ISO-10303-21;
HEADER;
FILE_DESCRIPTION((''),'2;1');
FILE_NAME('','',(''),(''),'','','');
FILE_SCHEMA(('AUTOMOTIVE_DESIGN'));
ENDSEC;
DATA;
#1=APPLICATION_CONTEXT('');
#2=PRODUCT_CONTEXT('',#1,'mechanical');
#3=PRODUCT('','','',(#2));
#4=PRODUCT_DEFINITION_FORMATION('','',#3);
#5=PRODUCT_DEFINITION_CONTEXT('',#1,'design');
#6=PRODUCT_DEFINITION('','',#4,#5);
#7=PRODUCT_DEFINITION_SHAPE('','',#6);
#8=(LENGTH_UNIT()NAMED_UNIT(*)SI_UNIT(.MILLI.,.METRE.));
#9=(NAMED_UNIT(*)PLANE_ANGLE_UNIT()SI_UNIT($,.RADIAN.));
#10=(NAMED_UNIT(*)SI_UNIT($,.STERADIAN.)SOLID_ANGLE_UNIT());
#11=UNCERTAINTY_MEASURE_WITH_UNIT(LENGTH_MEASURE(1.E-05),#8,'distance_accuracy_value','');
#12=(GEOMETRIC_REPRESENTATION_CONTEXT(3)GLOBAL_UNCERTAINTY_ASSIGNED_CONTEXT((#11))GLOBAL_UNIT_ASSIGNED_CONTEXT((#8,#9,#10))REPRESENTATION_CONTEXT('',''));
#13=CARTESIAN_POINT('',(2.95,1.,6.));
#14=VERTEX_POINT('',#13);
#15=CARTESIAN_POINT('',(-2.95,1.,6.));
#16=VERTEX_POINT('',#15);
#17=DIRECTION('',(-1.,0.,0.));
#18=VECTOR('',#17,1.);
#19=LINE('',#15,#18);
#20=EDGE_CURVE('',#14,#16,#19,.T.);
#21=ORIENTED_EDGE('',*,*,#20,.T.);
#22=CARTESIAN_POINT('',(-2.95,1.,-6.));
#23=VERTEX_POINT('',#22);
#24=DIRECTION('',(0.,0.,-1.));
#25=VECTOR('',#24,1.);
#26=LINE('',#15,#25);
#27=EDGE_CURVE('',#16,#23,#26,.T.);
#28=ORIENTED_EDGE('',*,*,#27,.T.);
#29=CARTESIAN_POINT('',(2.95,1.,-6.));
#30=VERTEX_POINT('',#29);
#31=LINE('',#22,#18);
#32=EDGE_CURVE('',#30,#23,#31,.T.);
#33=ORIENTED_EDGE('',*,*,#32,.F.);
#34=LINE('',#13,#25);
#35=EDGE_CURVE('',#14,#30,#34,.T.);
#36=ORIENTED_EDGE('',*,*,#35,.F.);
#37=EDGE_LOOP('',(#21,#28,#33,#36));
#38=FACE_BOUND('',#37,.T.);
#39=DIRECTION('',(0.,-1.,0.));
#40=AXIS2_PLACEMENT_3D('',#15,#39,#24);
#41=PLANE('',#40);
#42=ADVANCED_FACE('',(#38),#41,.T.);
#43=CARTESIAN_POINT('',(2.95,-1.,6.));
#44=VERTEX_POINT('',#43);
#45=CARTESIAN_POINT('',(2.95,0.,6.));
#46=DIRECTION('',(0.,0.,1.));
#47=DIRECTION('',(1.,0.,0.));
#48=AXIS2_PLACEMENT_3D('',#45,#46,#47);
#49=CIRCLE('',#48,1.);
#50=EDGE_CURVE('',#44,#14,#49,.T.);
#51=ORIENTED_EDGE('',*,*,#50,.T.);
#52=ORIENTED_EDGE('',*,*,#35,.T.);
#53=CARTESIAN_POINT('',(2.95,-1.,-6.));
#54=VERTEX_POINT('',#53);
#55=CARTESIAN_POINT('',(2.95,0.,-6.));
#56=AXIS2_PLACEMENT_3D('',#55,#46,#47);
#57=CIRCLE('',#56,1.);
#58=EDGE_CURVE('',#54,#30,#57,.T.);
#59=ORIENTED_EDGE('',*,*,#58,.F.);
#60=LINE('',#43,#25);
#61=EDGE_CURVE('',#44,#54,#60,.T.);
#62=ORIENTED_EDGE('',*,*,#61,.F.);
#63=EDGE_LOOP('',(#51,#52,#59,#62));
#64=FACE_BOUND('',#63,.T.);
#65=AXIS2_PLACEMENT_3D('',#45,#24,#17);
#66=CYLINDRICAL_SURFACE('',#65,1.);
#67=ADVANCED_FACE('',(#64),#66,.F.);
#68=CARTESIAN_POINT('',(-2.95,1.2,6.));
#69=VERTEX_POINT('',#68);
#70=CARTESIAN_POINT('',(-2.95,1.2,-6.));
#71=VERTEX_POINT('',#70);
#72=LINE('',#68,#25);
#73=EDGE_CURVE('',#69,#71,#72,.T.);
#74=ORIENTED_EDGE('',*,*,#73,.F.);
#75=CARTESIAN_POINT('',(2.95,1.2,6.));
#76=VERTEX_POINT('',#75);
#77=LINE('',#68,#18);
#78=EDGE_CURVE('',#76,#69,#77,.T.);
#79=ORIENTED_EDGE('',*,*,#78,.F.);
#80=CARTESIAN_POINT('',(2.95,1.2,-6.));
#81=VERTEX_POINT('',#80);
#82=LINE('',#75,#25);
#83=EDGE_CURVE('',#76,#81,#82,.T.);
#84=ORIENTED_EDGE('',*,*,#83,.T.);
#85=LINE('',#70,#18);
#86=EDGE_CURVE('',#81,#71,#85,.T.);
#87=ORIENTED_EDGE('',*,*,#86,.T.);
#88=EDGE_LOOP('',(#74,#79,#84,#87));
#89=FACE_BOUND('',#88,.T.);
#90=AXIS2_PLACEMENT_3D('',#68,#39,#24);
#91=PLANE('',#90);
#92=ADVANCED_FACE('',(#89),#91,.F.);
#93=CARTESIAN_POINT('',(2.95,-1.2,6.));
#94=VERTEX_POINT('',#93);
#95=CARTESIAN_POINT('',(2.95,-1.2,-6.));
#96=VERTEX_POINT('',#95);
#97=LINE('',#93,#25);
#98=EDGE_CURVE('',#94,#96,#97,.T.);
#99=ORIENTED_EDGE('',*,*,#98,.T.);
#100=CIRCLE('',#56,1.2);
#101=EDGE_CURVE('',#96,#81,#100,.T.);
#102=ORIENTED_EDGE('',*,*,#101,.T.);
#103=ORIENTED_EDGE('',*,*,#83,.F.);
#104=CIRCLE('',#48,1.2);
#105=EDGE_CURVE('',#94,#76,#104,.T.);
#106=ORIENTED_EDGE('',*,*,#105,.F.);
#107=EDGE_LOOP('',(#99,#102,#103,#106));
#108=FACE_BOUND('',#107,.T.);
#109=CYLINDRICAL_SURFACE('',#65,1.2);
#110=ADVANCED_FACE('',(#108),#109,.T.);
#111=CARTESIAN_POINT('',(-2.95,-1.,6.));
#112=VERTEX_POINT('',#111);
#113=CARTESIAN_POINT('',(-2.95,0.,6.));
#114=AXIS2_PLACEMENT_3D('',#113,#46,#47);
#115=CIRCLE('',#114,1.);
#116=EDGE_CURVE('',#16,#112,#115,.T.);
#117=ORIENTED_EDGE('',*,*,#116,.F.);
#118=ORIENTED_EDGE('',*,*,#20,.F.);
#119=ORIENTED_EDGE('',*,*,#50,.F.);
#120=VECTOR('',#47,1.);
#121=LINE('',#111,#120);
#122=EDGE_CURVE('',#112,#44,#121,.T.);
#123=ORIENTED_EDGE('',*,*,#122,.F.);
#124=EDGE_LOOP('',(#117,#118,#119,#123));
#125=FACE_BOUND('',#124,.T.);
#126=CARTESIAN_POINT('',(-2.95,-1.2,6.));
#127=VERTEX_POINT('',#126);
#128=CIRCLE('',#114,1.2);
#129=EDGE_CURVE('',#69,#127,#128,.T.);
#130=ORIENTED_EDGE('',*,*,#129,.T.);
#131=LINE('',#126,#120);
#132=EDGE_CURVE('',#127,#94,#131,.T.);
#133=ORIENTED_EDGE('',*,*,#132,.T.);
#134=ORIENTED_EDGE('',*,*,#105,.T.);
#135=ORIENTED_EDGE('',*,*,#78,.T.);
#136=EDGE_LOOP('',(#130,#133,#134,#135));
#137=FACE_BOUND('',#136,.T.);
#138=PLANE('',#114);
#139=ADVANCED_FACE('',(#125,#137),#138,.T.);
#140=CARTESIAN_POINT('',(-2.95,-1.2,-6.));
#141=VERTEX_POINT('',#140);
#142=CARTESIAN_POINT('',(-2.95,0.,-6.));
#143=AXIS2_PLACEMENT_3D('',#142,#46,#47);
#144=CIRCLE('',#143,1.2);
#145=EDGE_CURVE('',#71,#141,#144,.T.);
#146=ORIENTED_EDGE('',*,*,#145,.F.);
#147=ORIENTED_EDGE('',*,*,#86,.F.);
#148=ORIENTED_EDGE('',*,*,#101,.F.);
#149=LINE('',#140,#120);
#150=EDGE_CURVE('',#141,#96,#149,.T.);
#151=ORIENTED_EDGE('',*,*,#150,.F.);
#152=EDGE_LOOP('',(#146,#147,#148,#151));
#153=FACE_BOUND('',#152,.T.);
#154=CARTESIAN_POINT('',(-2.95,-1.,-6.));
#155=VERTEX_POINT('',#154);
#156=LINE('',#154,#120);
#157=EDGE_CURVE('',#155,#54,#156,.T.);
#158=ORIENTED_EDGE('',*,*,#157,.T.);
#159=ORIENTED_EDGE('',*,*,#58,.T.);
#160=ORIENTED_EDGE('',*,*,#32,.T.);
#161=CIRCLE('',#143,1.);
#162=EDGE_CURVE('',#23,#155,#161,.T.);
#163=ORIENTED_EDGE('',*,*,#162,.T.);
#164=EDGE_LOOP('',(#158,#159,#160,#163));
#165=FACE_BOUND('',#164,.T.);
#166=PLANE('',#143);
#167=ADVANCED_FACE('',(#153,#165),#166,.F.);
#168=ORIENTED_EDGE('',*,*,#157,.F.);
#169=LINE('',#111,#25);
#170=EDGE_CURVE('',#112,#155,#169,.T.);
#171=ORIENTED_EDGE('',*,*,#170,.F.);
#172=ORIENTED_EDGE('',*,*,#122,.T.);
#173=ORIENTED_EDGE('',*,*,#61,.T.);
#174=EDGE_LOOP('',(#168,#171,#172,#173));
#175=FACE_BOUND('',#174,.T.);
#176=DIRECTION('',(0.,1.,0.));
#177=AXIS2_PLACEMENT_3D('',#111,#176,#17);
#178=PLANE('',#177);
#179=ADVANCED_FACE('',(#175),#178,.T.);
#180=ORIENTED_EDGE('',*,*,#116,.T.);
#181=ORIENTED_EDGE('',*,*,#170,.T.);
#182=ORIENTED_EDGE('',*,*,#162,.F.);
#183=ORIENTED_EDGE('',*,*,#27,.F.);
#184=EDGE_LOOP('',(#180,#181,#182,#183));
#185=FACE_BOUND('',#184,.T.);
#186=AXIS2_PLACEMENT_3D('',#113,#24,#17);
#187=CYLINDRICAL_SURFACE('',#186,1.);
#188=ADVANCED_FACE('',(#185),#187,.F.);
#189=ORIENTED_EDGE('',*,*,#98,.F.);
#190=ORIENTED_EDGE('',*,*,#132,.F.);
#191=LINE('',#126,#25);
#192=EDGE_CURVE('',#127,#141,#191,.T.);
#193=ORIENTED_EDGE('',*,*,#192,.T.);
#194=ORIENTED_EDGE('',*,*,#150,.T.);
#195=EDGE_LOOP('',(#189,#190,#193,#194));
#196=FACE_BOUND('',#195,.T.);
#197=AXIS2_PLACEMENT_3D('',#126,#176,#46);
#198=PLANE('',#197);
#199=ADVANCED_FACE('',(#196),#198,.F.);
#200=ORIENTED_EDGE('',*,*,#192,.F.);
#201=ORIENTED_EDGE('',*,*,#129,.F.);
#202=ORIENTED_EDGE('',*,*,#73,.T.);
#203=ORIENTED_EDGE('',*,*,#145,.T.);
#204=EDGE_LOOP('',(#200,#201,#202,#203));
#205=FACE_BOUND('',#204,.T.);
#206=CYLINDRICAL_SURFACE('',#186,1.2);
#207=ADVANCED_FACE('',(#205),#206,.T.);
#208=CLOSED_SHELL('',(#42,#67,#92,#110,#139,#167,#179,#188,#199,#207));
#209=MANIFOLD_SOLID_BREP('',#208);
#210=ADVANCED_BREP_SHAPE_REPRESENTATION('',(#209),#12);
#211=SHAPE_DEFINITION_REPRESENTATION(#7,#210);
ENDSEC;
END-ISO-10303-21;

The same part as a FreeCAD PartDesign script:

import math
import FreeCAD as App
import Part
import Sketcher

V = App.Vector
Q = App.Units.Quantity

doc = App.newDocument("Part")
params = doc.addObject("Spreadsheet::Sheet", "Params")
for row, (alias, value) in enumerate([
    ("sketch1_radius", "1 mm"),
    ("sketch1_radius2", "1.2 mm"),
    ("sketch1_width", "5.9 mm"),
    ("pad1_length", "12 mm"),
], start=1):
    params.set(f"A{row}", alias)
    params.set(f"B{row}", "=" + value)
    params.setAlias(f"B{row}", alias)

body = doc.addObject("PartDesign::Body", "Body")

sketch1 = body.newObject("Sketcher::SketchObject", "Sketch")
sketch1.AttachmentSupport = (doc.getObject("XY_Plane"), [""])
sketch1.MapMode = "FlatFace"
sketch1.addGeometry(Part.LineSegment(V(3, 1.2, 0), V(-3, 1.2, 0)), False)
sketch1.addGeometry(Part.ArcOfCircle(Part.Circle(V(-3, 0, 0), V(0, 0, 1), 1.2), math.radians(90), math.radians(270)), False)
sketch1.addGeometry(Part.LineSegment(V(-3, -1.2, 0), V(3, -1.2, 0)), False)
sketch1.addGeometry(Part.ArcOfCircle(Part.Circle(V(3, 0, 0), V(0, 0, 1), 1.2), math.radians(-90), math.radians(90)), False)
sketch1.addGeometry(Part.LineSegment(V(-3, 1, 0), V(3, 1, 0)), False)
sketch1.addGeometry(Part.ArcOfCircle(Part.Circle(V(3, 0, 0), V(0, 0, 1), 1), math.radians(-90), math.radians(90)), False)
sketch1.addGeometry(Part.LineSegment(V(3, -1, 0), V(-3, -1, 0)), False)
sketch1.addGeometry(Part.ArcOfCircle(Part.Circle(V(-3, 0, 0), V(0, 0, 1), 1), math.radians(90), math.radians(270)), False)
sketch1.addConstraint(Sketcher.Constraint("Tangent", 0, 2, 1, 1))
sketch1.addConstraint(Sketcher.Constraint("Tangent", 1, 2, 2, 1))
sketch1.addConstraint(Sketcher.Constraint("Tangent", 2, 2, 3, 1))
sketch1.addConstraint(Sketcher.Constraint("Tangent", 3, 2, 0, 1))
sketch1.addConstraint(Sketcher.Constraint("Tangent", 4, 2, 5, 2))
sketch1.addConstraint(Sketcher.Constraint("Tangent", 5, 1, 6, 1))
sketch1.addConstraint(Sketcher.Constraint("Tangent", 6, 2, 7, 2))
sketch1.addConstraint(Sketcher.Constraint("Tangent", 7, 1, 4, 1))
sketch1.addConstraint(Sketcher.Constraint("Horizontal", 0))
sketch1.addConstraint(Sketcher.Constraint("Horizontal", 2))
sketch1.addConstraint(Sketcher.Constraint("Horizontal", 4))
sketch1.addConstraint(Sketcher.Constraint("Horizontal", 6))
sketch1.addConstraint(Sketcher.Constraint("Coincident", 5, 3, 3, 3))
sketch1.addConstraint(Sketcher.Constraint("Symmetric", 1, 3, 3, 3, -1, 1))
sketch1.addConstraint(Sketcher.Constraint("Vertical", 7, 3, 0, 2))
sketch1.addConstraint(Sketcher.Constraint("Radius", 5, Q("1 mm")))
sketch1.addConstraint(Sketcher.Constraint("Radius", 1, Q("1.2 mm")))
sketch1.addConstraint(Sketcher.Constraint("DistanceX", 0, 2, 0, 1, Q("5.9 mm")))
sketch1.setExpression("Constraints[15]", "Params.sketch1_radius")
sketch1.setExpression("Constraints[16]", "Params.sketch1_radius2")
sketch1.setExpression("Constraints[17]", "Params.sketch1_width")
pad1 = body.newObject("PartDesign::Pad", "Pad")
pad1.Profile = sketch1
pad1.setExpression("Length", "Params.pad1_length")
pad1.Midplane = True

doc.recompute()
